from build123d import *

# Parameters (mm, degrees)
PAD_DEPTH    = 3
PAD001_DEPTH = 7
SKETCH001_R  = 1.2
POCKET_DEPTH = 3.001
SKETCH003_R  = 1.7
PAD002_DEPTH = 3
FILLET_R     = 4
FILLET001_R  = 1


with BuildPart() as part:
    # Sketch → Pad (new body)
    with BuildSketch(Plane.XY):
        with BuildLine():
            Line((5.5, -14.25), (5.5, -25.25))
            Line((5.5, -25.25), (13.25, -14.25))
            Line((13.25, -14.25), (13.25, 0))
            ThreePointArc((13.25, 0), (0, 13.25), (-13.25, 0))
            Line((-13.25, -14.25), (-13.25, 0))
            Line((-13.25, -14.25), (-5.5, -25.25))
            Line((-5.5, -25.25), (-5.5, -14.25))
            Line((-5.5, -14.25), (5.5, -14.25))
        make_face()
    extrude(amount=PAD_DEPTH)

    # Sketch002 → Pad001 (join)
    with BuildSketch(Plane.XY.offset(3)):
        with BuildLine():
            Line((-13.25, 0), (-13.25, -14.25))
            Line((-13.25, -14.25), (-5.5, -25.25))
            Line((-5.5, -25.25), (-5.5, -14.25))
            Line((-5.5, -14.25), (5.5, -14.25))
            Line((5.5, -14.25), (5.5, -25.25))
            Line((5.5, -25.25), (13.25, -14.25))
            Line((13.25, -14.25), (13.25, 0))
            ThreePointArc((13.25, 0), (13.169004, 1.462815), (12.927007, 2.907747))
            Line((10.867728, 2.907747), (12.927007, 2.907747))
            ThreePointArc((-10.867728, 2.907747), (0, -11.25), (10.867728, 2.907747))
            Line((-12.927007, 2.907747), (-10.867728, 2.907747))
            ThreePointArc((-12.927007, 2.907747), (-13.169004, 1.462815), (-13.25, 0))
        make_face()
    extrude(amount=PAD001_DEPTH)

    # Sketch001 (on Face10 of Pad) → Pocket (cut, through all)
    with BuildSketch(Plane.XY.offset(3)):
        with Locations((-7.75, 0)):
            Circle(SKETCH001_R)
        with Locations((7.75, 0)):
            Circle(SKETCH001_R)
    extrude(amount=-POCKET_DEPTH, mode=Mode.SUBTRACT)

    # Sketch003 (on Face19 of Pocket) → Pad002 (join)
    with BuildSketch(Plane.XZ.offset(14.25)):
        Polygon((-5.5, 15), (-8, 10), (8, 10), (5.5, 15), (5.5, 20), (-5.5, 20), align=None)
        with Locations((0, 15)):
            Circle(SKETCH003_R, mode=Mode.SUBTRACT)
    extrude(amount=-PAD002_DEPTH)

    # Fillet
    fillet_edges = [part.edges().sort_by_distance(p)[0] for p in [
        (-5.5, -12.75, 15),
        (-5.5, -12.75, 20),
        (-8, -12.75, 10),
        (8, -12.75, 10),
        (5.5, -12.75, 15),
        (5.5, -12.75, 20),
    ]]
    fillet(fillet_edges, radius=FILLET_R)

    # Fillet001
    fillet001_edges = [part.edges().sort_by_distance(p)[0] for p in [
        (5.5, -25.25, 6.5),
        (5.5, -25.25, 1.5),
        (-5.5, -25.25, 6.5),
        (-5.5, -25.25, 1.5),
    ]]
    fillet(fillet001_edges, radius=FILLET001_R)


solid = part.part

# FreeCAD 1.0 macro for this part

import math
import FreeCAD as App
import Part
import Sketcher
from FreeCAD import Vector
Q = App.Units.Quantity


def edges_at(feature, points):
    """Names of the edges that pass closest to the given points."""
    edges = feature.Shape.Edges
    near = lambda p: min(range(len(edges)), key=lambda i: edges[i].distToShape(Part.Vertex(*p))[0])
    return sorted({f"Edge{near(p) + 1}" for p in points})


def add_polygon(sketch, points):
    """Adds a closed chain of lines whose ends are joined by coincident constraints."""
    first, n = sketch.GeometryCount, len(points)
    for a, b in zip(points, points[1:] + points[:1]):
        sketch.addGeometry(Part.LineSegment(App.Vector(*a, 0), App.Vector(*b, 0)), False)
    for i in range(n):
        sketch.addConstraint(Sketcher.Constraint("Coincident", first + i, 2, first + (i + 1) % n, 1))

doc = App.newDocument("Part")
body = doc.addObject("PartDesign::Body", "Body")

# Sketch on XY plane
sketch1 = body.newObject("Sketcher::SketchObject", "Sketch")
sketch1.AttachmentSupport = (doc.getObject("XY_Plane"), [""])
sketch1.MapMode = "FlatFace"
sketch1.addGeometry([
    Part.LineSegment(Vector(6, -14, 0), Vector(6, -25, 0)),  # 0
    Part.LineSegment(Vector(6, -25, 0), Vector(13, -14, 0)),  # 1
    Part.LineSegment(Vector(13, -14, 0), Vector(13, 0, 0)),  # 2
    Part.ArcOfCircle(Part.Circle(Vector(0, 0, 0), Vector(0, 0, 1), 13), math.radians(0), math.radians(180)),  # 3
    Part.LineSegment(Vector(-13, 0, 0), Vector(-13, -14, 0)),  # 4
    Part.LineSegment(Vector(-13, -14, 0), Vector(-6, -25, 0)),  # 5
    Part.LineSegment(Vector(-6, -25, 0), Vector(-6, -14, 0)),  # 6
    Part.LineSegment(Vector(-6, -14, 0), Vector(6, -14, 0)),  # 7
], False)
sketch1.addConstraint([
    Sketcher.Constraint("Coincident", 0, 2, 1, 1),
    Sketcher.Constraint("Coincident", 1, 2, 2, 1),
    Sketcher.Constraint("Tangent", 2, 2, 3, 1),
    Sketcher.Constraint("Tangent", 3, 2, 4, 1),
    Sketcher.Constraint("Coincident", 4, 2, 5, 1),
    Sketcher.Constraint("Coincident", 5, 2, 6, 1),
    Sketcher.Constraint("Coincident", 6, 2, 7, 1),
    Sketcher.Constraint("Coincident", 7, 2, 0, 1),
    Sketcher.Constraint("Vertical", 0),
    Sketcher.Constraint("Vertical", 2),
    Sketcher.Constraint("Vertical", 4),
    Sketcher.Constraint("Vertical", 6),
    Sketcher.Constraint("Horizontal", 7),
    Sketcher.Constraint("Coincident", 3, 3, -1, 1),
    Sketcher.Constraint("Symmetric", 0, 2, 5, 2, -2),
    Sketcher.Constraint("Horizontal", 1, 2, 4, 2),
    Sketcher.Constraint("Horizontal", 4, 2, 6, 2),
    Sketcher.Constraint("Equal", 7, 0),
    Sketcher.Constraint("DistanceX", 7, 1, 7, 2, Q("11 mm")),
    Sketcher.Constraint("Radius", 3, Q("13.25 mm")),
    Sketcher.Constraint("DistanceY", 2, 1, 2, 2, Q("14.25 mm")),
])
pad1 = body.newObject("PartDesign::Pad", "Pad")
pad1.Profile = sketch1
pad1.Length = 3

# Sketch on XY plane
sketch2 = body.newObject("Sketcher::SketchObject", "Sketch001")
sketch2.AttachmentSupport = (doc.getObject("XY_Plane"), [""])
sketch2.MapMode = "FlatFace"
sketch2.AttachmentOffset = App.Placement(Vector(0, 0, 3), App.Rotation())
sketch2.addGeometry([
    Part.LineSegment(Vector(-13.25, 0, 0), Vector(-13.25, -14.25, 0)),  # 0
    Part.LineSegment(Vector(-13.25, -14.25, 0), Vector(-5.5, -25.25, 0)),  # 1
    Part.LineSegment(Vector(-5.5, -25.25, 0), Vector(-5.5, -14.25, 0)),  # 2
    Part.LineSegment(Vector(-5.5, -14.25, 0), Vector(5.5, -14.25, 0)),  # 3
    Part.LineSegment(Vector(5.5, -14.25, 0), Vector(5.5, -25.25, 0)),  # 4
    Part.LineSegment(Vector(5.5, -25.25, 0), Vector(13.25, -14.25, 0)),  # 5
    Part.LineSegment(Vector(13.25, -14.25, 0), Vector(13.25, 0, 0)),  # 6
    Part.ArcOfCircle(Part.Circle(Vector(-0.000044, -0.000004, 0), Vector(0, 0, 1), 13.250044), math.radians(0.000019), math.radians(12.676861)),  # 7
    Part.LineSegment(Vector(12.927007, 2.907747, 0), Vector(10.867728, 2.907747, 0)),  # 8
    Part.ArcOfCircle(Part.Circle(Vector(0, 0, 0), Vector(0, 0, 1), 11.25), math.radians(165.020918), math.radians(374.979082)),  # 9
    Part.LineSegment(Vector(-10.867728, 2.907747, 0), Vector(-12.927007, 2.907747, 0)),  # 10
    Part.ArcOfCircle(Part.Circle(Vector(0.000044, -0.000004, 0), Vector(0, 0, 1), 13.250044), math.radians(167.323139), math.radians(179.999981)),  # 11
], False)
sketch2.addConstraint([
    Sketcher.Constraint("Coincident", 0, 2, 1, 1),
    Sketcher.Constraint("Coincident", 1, 2, 2, 1),
    Sketcher.Constraint("Coincident", 2, 2, 3, 1),
    Sketcher.Constraint("Coincident", 3, 2, 4, 1),
    Sketcher.Constraint("Coincident", 4, 2, 5, 1),
    Sketcher.Constraint("Coincident", 5, 2, 6, 1),
    Sketcher.Constraint("Coincident", 6, 2, 7, 1),
    Sketcher.Constraint("Coincident", 7, 2, 8, 1),
    Sketcher.Constraint("Coincident", 8, 2, 9, 2),
    Sketcher.Constraint("Coincident", 9, 1, 10, 1),
    Sketcher.Constraint("Coincident", 10, 2, 11, 1),
    Sketcher.Constraint("Coincident", 11, 2, 0, 1),
    Sketcher.Constraint("Vertical", 0),
    Sketcher.Constraint("Vertical", 2),
    Sketcher.Constraint("Horizontal", 3),
    Sketcher.Constraint("Vertical", 4),
    Sketcher.Constraint("Vertical", 6),
    Sketcher.Constraint("Horizontal", 8),
    Sketcher.Constraint("Horizontal", 10),
    Sketcher.Constraint("Coincident", 9, 3, -1, 1),
    Sketcher.Constraint("PointOnObject", 6, 2, -1),
    Sketcher.Constraint("PointOnObject", 11, 2, -1),
    Sketcher.Constraint("DistanceX", 3, 1, 3, 2, Q("11 mm")),
    Sketcher.Constraint("DistanceY", 2, 1, 2, 2, Q("11 mm")),
    Sketcher.Constraint("DistanceY", 4, 2, 4, 1, Q("11 mm")),
    Sketcher.Constraint("Radius", 9, Q("11.25 mm")),
    Sketcher.Constraint("DistanceY", 1, 2, 0, 2, Q("11 mm")),
    Sketcher.Constraint("DistanceY", 4, 2, 5, 2, Q("11 mm")),
    Sketcher.Constraint("DistanceY", 0, 2, 0, 1, Q("14.25 mm")),
    Sketcher.Constraint("DistanceX", 1, 2, -1, 1, Q("5.5 mm")),
    Sketcher.Constraint("DistanceX", 0, 2, -1, 1, Q("13.25 mm")),
    Sketcher.Constraint("DistanceX", -1, 1, 5, 2, Q("13.25 mm")),
    Sketcher.Constraint("Radius", 7, Q("13.250044 mm")),
    Sketcher.Constraint("Radius", 11, Q("13.250044 mm")),
    Sketcher.Constraint("DistanceX", 8, 2, 8, 1, Q("2.059279 mm")),
    Sketcher.Constraint("DistanceX", 10, 2, 10, 1, Q("2.059279 mm")),
    Sketcher.Constraint("DistanceX", 9, 1, -1, 1, Q("10.867728 mm")),
    Sketcher.Constraint("DistanceY", 11, 3, 7, 2, Q("2.907751 mm")),
])
pad2 = body.newObject("PartDesign::Pad", "Pad001")
pad2.Profile = sketch2
pad2.Length = 7

# Sketch on XY plane
sketch3 = body.newObject("Sketcher::SketchObject", "Sketch002")
sketch3.AttachmentSupport = (doc.getObject("XY_Plane"), [""])
sketch3.MapMode = "FlatFace"
sketch3.AttachmentOffset = App.Placement(Vector(0, 0, 3), App.Rotation())
sketch3.addGeometry([
    Part.Circle(Vector(-7.8, 0, 0), Vector(0, 0, 1), 1.2),
    Part.Circle(Vector(7.8, 0, 0), Vector(0, 0, 1), 1.2),
], False)
sketch3.addConstraint([
    Sketcher.Constraint("Equal", 0, 1),
    Sketcher.Constraint("Symmetric", 0, 3, 1, 3, -1, 1),
    Sketcher.Constraint("PointOnObject", 0, 3, -1),
    Sketcher.Constraint("Diameter", 0, Q("2.4 mm")),
    Sketcher.Constraint("DistanceX", 0, 3, 1, 3, Q("15.5 mm")),
])
pocket1 = body.newObject("PartDesign::Pocket", "Pocket")
pocket1.Profile = sketch3
pocket1.Type = "ThroughAll"

# Sketch on XZ plane
sketch4 = body.newObject("Sketcher::SketchObject", "Sketch003")
sketch4.AttachmentSupport = (doc.getObject("XZ_Plane"), [""])
sketch4.MapMode = "FlatFace"
sketch4.AttachmentOffset = App.Placement(Vector(0, 0, 14.25), App.Rotation())
add_polygon(sketch4, [(-5.5, 15), (-8, 10), (8, 10), (5.5, 15), (5.5, 20), (-5.5, 20)])  # lines 0-5
sketch4.addGeometry(Part.Circle(Vector(0, 15, 0), Vector(0, 0, 1), 1.7), False)  # 6
sketch4.addConstraint([
    Sketcher.Constraint("Horizontal", 1),
    Sketcher.Constraint("Vertical", 3),
    Sketcher.Constraint("Horizontal", 4),
    Sketcher.Constraint("Vertical", 5),
    Sketcher.Constraint("Symmetric", 2, 2, 5, 2, -2),
    Sketcher.Constraint("PointOnObject", 6, 3, -2),
    Sketcher.Constraint("Horizontal", 6, 3, 2, 2),
    Sketcher.Constraint("Equal", 0, 2),
    Sketcher.Constraint("Diameter", 6, Q("3.4 mm")),
    Sketcher.Constraint("DistanceX", 1, 1, 1, 2, Q("16 mm")),
    Sketcher.Constraint("DistanceX", 4, 2, 4, 1, Q("11 mm")),
    Sketcher.Constraint("DistanceY", 3, 1, 3, 2, Q("5 mm")),
    Sketcher.Constraint("DistanceY", -1, 1, 6, 3, Q("15 mm")),
    Sketcher.Constraint("DistanceY", -1, 1, 0, 2, Q("10 mm")),
])
pad3 = body.newObject("PartDesign::Pad", "Pad002")
pad3.Profile = sketch4
pad3.Length = 3
pad3.Reversed = True
doc.recompute()

fillet = body.newObject("PartDesign::Fillet", "Fillet")
fillet.Base = (pad3, edges_at(pad3, [
    (-5.5, -12.75, 15),
    (-5.5, -12.75, 20),
    (-8, -12.75, 10),
    (8, -12.75, 10),
    (5.5, -12.75, 15),
    (5.5, -12.75, 20),
]))
fillet.Radius = 4
doc.recompute()

fillet2 = body.newObject("PartDesign::Fillet", "Fillet001")
fillet2.Base = (fillet, edges_at(fillet, [
    (5.5, -25.25, 5),
    (5.5, -25.25, 5),
    (-5.5, -25.25, 5),
    (-5.5, -25.25, 5),
]))
fillet2.Radius = 1

doc.recompute()
